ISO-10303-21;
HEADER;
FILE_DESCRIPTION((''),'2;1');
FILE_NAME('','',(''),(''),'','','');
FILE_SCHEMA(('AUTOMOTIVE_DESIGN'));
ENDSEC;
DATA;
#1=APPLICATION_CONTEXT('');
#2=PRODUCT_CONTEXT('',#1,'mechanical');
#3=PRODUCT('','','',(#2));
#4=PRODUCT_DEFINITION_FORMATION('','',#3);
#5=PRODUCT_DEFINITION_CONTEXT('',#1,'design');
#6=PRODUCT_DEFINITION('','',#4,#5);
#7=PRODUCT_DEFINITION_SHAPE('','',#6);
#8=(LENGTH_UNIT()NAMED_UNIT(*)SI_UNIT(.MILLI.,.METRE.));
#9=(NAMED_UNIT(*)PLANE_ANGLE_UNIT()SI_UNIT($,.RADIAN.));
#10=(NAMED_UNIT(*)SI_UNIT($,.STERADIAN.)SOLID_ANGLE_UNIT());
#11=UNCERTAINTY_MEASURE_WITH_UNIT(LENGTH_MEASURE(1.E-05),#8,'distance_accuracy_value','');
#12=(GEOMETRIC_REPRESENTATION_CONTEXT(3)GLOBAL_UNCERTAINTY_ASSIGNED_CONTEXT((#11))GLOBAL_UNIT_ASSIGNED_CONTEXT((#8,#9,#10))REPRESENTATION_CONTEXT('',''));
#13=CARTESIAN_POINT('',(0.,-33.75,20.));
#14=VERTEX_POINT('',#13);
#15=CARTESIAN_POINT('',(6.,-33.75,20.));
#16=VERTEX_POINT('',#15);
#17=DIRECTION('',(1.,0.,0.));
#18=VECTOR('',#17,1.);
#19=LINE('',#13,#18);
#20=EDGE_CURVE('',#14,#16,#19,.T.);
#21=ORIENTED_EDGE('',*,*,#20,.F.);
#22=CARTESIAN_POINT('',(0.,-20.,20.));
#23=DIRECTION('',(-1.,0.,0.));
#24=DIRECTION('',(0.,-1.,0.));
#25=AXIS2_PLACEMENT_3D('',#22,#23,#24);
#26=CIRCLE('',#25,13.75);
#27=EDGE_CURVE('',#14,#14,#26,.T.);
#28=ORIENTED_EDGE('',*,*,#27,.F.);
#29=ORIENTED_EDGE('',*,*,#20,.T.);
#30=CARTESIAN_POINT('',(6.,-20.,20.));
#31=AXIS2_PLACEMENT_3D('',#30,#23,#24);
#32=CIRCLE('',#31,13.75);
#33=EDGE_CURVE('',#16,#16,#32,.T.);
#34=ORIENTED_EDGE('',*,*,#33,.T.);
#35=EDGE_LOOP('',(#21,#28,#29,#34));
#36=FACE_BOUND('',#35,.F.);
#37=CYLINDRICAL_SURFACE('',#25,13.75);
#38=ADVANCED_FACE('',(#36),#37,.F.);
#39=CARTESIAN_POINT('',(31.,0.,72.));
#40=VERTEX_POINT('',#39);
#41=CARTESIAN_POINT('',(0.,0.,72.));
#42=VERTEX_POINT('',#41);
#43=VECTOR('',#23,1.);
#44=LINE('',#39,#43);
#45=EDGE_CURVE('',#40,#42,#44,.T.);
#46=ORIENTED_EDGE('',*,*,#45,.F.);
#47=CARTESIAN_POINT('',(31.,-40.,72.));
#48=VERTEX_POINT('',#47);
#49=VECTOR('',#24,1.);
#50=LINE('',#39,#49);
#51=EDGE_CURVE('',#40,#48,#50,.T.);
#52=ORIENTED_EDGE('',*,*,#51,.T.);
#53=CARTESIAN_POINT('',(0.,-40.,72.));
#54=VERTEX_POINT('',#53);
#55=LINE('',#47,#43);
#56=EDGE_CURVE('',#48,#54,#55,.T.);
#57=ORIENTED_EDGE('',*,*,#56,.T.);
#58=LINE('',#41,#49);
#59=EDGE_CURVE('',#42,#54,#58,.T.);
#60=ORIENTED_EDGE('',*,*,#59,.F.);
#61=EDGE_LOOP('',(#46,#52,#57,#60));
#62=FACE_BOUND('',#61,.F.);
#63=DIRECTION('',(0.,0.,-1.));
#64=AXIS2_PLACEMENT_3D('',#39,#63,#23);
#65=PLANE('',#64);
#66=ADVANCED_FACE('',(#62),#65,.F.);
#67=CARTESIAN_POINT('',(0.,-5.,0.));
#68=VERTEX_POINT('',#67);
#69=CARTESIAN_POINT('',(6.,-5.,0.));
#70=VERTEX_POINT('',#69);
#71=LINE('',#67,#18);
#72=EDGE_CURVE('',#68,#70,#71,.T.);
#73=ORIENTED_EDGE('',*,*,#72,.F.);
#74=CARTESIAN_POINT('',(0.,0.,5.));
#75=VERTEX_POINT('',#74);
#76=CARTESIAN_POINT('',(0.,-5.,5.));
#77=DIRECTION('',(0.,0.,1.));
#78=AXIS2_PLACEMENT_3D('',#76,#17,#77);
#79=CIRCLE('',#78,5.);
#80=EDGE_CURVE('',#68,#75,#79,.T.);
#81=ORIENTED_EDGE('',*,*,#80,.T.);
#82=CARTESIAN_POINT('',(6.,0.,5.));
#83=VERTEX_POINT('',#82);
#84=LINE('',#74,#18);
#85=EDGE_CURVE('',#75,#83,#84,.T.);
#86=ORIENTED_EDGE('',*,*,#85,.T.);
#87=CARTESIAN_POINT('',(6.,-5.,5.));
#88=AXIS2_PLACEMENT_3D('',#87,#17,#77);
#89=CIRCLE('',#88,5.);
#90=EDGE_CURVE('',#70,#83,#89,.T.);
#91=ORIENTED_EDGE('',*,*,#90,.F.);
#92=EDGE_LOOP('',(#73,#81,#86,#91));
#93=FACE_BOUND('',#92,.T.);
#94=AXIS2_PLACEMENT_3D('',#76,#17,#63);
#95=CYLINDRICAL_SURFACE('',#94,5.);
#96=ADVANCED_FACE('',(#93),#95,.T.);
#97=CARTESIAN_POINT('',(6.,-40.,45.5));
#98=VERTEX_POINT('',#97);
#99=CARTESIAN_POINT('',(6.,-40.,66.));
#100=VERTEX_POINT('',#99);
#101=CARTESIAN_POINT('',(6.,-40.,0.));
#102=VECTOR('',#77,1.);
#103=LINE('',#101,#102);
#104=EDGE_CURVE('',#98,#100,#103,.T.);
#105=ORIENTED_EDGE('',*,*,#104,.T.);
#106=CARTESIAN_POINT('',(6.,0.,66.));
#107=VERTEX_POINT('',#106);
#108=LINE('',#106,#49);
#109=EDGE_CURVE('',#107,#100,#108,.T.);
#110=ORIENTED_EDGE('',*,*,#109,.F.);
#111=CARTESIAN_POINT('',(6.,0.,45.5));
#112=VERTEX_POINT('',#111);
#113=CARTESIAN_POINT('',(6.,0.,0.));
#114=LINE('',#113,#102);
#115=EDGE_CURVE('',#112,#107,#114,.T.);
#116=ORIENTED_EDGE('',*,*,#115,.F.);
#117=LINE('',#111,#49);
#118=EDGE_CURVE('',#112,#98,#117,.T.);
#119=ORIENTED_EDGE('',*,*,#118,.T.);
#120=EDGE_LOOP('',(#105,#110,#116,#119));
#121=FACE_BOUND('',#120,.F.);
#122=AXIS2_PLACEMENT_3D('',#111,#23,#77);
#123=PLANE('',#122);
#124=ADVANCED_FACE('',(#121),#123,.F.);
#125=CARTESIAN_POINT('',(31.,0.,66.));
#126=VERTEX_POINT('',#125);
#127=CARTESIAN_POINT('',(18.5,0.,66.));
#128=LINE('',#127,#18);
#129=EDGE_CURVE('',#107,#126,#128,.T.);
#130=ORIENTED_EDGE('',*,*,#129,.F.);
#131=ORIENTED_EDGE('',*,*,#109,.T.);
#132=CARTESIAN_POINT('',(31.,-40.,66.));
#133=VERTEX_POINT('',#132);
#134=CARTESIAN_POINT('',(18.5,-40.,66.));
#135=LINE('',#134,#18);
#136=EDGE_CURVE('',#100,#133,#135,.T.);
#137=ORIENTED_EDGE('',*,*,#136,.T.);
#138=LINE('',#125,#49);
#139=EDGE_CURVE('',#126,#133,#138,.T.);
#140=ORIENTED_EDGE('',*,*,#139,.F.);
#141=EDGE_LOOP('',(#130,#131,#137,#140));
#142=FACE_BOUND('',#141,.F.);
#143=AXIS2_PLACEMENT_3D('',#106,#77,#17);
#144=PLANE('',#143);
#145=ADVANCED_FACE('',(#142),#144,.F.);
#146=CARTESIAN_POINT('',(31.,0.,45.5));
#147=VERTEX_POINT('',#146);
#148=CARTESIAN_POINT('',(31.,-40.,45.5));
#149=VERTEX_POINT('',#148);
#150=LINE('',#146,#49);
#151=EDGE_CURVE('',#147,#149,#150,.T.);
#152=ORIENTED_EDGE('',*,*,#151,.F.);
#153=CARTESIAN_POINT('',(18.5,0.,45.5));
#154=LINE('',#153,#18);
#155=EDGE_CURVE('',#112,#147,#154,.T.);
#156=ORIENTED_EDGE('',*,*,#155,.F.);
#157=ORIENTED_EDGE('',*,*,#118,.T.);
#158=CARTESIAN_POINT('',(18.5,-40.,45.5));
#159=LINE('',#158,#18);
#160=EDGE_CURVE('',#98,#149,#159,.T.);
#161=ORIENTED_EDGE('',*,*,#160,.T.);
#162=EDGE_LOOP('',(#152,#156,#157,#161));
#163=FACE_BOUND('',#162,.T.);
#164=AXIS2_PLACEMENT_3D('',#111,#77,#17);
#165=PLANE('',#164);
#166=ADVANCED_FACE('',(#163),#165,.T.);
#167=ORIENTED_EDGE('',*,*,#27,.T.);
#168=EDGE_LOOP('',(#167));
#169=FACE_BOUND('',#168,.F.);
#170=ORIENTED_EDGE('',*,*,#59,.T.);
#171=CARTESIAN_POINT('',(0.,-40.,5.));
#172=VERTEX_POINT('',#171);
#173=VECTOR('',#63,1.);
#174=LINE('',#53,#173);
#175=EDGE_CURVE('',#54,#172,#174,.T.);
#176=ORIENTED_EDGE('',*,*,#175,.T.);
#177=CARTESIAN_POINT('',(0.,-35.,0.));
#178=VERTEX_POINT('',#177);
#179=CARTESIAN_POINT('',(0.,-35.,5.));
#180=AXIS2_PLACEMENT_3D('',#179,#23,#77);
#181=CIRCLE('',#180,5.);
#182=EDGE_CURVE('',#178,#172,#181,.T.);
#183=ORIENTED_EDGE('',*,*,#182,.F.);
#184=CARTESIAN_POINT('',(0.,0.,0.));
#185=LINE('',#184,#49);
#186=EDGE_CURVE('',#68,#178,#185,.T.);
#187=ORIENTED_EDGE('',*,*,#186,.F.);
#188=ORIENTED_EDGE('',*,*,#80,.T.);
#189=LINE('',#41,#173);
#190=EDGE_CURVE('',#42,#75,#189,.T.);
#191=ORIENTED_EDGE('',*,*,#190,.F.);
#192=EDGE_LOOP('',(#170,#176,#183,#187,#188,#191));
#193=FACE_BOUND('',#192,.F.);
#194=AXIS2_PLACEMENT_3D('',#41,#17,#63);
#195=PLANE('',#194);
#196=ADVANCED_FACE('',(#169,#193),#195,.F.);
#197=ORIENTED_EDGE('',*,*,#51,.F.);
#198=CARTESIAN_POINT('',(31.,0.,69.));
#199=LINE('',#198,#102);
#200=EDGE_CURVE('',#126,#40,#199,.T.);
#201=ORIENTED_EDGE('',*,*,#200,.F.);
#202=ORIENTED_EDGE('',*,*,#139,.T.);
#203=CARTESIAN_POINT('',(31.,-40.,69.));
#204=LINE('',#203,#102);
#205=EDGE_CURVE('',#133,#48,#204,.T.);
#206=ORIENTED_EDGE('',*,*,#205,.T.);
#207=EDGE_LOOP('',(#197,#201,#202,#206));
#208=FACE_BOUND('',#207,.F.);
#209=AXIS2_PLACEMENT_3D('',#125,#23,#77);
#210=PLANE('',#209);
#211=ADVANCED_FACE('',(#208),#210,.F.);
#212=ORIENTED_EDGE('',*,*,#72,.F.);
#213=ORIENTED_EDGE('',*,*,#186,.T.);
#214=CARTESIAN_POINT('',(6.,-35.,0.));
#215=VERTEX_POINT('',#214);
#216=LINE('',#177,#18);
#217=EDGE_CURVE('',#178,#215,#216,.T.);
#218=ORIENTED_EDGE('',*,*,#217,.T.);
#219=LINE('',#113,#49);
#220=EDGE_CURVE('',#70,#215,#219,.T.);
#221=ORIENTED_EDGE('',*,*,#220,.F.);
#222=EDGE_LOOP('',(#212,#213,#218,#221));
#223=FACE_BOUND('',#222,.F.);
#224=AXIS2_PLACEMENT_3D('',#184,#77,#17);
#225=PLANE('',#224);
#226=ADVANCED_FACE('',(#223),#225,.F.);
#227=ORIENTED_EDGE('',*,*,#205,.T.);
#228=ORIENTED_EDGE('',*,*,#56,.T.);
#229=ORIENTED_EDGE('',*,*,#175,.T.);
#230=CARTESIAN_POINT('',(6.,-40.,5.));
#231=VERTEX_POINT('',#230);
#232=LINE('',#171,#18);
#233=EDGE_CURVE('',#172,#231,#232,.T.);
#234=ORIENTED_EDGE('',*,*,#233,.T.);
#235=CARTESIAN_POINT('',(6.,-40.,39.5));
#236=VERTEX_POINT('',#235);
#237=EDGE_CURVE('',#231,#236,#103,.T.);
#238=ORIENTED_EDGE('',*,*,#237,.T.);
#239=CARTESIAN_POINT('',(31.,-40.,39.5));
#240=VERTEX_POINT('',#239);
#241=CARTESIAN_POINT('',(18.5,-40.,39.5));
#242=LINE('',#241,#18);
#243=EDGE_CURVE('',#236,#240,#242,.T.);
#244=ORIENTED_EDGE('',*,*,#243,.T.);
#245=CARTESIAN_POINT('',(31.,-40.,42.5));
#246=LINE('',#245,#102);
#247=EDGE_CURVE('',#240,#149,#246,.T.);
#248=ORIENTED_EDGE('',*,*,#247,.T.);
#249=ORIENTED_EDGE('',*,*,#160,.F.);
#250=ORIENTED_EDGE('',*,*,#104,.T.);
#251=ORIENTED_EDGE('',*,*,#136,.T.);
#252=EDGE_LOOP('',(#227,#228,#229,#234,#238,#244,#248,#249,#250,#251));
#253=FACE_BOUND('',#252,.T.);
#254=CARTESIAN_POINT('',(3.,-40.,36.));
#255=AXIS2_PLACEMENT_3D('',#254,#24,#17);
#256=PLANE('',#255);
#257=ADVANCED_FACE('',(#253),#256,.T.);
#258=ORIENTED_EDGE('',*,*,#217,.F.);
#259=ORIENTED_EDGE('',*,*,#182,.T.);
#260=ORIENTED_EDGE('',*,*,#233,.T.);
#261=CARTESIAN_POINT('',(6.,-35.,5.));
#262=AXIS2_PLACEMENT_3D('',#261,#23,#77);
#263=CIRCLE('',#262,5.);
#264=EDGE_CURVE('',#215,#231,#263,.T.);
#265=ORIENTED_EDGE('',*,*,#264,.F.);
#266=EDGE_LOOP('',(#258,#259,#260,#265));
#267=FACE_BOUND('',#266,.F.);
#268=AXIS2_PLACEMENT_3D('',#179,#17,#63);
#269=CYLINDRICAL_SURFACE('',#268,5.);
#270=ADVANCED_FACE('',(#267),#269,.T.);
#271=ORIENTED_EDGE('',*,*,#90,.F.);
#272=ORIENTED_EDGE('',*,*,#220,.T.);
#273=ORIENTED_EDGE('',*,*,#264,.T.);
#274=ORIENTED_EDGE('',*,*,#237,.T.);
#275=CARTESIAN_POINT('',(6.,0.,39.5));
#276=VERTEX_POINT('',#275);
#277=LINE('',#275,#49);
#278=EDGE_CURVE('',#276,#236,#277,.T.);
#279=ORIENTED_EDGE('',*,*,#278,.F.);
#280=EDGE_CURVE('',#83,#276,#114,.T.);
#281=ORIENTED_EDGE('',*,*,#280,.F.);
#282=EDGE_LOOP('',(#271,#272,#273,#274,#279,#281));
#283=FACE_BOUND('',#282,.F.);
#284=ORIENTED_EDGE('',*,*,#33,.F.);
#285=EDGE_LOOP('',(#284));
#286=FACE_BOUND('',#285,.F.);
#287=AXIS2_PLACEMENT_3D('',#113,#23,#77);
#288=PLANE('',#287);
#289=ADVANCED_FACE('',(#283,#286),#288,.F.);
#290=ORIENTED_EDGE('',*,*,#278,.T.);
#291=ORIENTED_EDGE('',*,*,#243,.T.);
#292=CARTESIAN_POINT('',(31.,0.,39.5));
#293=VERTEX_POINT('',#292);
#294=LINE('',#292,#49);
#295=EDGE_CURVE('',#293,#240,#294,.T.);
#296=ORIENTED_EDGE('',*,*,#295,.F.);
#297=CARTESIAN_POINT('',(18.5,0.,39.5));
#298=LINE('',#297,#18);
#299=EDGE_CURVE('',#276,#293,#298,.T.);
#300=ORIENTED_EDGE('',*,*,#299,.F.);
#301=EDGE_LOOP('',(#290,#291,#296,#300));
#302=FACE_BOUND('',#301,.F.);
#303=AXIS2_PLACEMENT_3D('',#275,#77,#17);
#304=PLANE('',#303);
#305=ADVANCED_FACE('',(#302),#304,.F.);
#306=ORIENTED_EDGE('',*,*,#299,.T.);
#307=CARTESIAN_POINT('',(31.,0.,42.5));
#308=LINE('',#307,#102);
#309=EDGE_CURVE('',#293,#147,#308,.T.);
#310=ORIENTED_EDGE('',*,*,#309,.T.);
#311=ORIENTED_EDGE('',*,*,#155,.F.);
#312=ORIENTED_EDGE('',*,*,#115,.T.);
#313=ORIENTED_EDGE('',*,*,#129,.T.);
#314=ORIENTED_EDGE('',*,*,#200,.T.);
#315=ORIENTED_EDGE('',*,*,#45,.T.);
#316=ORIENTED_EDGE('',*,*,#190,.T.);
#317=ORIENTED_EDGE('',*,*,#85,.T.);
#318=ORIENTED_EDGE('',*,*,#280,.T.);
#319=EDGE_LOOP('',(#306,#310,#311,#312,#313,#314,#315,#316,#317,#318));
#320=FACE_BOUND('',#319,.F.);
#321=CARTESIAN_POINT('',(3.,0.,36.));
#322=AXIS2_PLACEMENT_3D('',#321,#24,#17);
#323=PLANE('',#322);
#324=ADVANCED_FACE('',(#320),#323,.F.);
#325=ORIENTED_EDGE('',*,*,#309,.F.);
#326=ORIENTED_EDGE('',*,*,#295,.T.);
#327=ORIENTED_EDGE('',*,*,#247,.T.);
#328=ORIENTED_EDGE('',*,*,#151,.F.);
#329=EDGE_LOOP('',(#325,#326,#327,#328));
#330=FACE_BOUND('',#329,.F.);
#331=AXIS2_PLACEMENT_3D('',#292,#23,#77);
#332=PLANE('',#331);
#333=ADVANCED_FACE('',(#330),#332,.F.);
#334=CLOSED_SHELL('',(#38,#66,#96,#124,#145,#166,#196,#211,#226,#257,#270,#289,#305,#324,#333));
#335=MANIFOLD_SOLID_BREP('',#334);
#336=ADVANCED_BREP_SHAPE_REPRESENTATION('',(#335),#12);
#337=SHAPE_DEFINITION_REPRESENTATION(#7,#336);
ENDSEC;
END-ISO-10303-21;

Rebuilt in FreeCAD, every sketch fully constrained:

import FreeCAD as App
import Part
import Sketcher

V = App.Vector


def edges_at(feature, points):
    """Names of the edges that pass closest to the given points."""
    edges = feature.Shape.Edges
    near = lambda p: min(range(len(edges)), key=lambda i: edges[i].distToShape(Part.Vertex(*p))[0])
    return sorted({f"Edge{near(p) + 1}" for p in points})

doc = App.newDocument("Part")
params = doc.addObject("Spreadsheet::Sheet", "Params")
for row, (alias, value) in enumerate([
    ("sketch1_width", "6 mm"),
    ("sketch1_width2", "25 mm"),
    ("sketch1_height", "72 mm"),
    ("sketch1_height2", "39.5 mm"),
    ("pad1_length", "40 mm"),
    ("fillet_radius", "5 mm"),
    ("sketch2_diameter", "27.5 mm"),
    ("pocket1_length", "25 mm"),
], start=1):
    params.set(f"A{row}", alias)
    params.set(f"B{row}", "=" + value)
    params.setAlias(f"B{row}", alias)

body = doc.addObject("PartDesign::Body", "Body")

# Sketch on XZ plane
sketch1 = doc.addObject("Sketcher::SketchObject", "Sketch")
body.addObject(sketch1)
sketch1.AttachmentSupport = (doc.XZ_Plane, [""])
sketch1.MapMode = "FlatFace"
sketch1.addGeometry([
    Part.LineSegment(V(0, 72, 0), V(0, 0, 0)),  # 0
    Part.LineSegment(V(0, 0, 0), V(6, 0, 0)),  # 1
    Part.LineSegment(V(6, 0, 0), V(6, 39.5, 0)),  # 2
    Part.LineSegment(V(6, 39.5, 0), V(31, 39.5, 0)),  # 3
    Part.LineSegment(V(31, 39.5, 0), V(31, 45.5, 0)),  # 4
    Part.LineSegment(V(31, 45.5, 0), V(6, 45.5, 0)),  # 5
    Part.LineSegment(V(6, 45.5, 0), V(6, 66, 0)),  # 6
    Part.LineSegment(V(6, 66, 0), V(31, 66, 0)),  # 7
    Part.LineSegment(V(31, 66, 0), V(31, 72, 0)),  # 8
    Part.LineSegment(V(31, 72, 0), V(0, 72, 0)),  # 9
], False)
sketch1.addConstraint([
    Sketcher.Constraint("Coincident", 0, 2, 1, 1),
    Sketcher.Constraint("Coincident", 1, 2, 2, 1),
    Sketcher.Constraint("Coincident", 2, 2, 3, 1),
    Sketcher.Constraint("Coincident", 3, 2, 4, 1),
    Sketcher.Constraint("Coincident", 4, 2, 5, 1),
    Sketcher.Constraint("Coincident", 5, 2, 6, 1),
    Sketcher.Constraint("Coincident", 6, 2, 7, 1),
    Sketcher.Constraint("Coincident", 7, 2, 8, 1),
    Sketcher.Constraint("Coincident", 8, 2, 9, 1),
    Sketcher.Constraint("Coincident", 9, 2, 0, 1),
    Sketcher.Constraint("Vertical", 0),
    Sketcher.Constraint("Horizontal", 1),
    Sketcher.Constraint("Vertical", 2),
    Sketcher.Constraint("Horizontal", 3),
    Sketcher.Constraint("Vertical", 4),
    Sketcher.Constraint("Horizontal", 5),
    Sketcher.Constraint("Vertical", 6),
    Sketcher.Constraint("Horizontal", 7),
    Sketcher.Constraint("Vertical", 8),
    Sketcher.Constraint("Horizontal", 9),
    Sketcher.Constraint("Coincident", 0, 2, -1, 1),
    Sketcher.Constraint("Vertical", 2, 2, 5, 2),
    Sketcher.Constraint("Vertical", 4, 2, 7, 2),
    Sketcher.Constraint("Equal", 1, 4),
    Sketcher.Constraint("Equal", 4, 8),
    Sketcher.Constraint("DistanceX", 1, 1, 1, 2, 6.0),
    Sketcher.Constraint("DistanceX", 3, 1, 3, 2, 25.0),
    Sketcher.Constraint("DistanceY", 0, 2, 0, 1, 72.0),
    Sketcher.Constraint("DistanceY", 2, 1, 2, 2, 39.5),
])
sketch1.setExpression("Constraints[25]", "Params.sketch1_width")
sketch1.setExpression("Constraints[26]", "Params.sketch1_width2")
sketch1.setExpression("Constraints[27]", "Params.sketch1_height")
sketch1.setExpression("Constraints[28]", "Params.sketch1_height2")
pad1 = doc.addObject("PartDesign::Pad", "Pad")
body.addObject(pad1)
pad1.Profile = sketch1
pad1.setExpression("Length", "Params.pad1_length")
doc.recompute()

fillet = doc.addObject("PartDesign::Fillet", "Fillet")
body.addObject(fillet)
fillet.Base = (pad1, edges_at(pad1, [(3, 0, 0), (3, -40, 0)]))
fillet.setExpression("Radius", "Params.fillet_radius")

# Sketch on YZ plane
sketch2 = doc.addObject("Sketcher::SketchObject", "Sketch001")
body.addObject(sketch2)
sketch2.AttachmentSupport = (doc.YZ_Plane, [""])
sketch2.MapMode = "FlatFace"
sketch2.addGeometry(Part.Circle(V(-20, 20, 0), V(0, 0, 1), 13.75), False)
sketch2.addConstraint([
    Sketcher.Constraint("Diameter", 0, 27.5),
    Sketcher.Constraint("DistanceX", 0, 3, -1, 1, 20.0),
    Sketcher.Constraint("DistanceY", -1, 1, 0, 3, 20.0),
])
sketch2.setExpression("Constraints[0]", "Params.sketch2_diameter")
pocket1 = doc.addObject("PartDesign::Pocket", "Pocket")
body.addObject(pocket1)
pocket1.Profile = sketch2
pocket1.setExpression("Length", "Params.pocket1_length")
pocket1.Reversed = True

doc.recompute()
